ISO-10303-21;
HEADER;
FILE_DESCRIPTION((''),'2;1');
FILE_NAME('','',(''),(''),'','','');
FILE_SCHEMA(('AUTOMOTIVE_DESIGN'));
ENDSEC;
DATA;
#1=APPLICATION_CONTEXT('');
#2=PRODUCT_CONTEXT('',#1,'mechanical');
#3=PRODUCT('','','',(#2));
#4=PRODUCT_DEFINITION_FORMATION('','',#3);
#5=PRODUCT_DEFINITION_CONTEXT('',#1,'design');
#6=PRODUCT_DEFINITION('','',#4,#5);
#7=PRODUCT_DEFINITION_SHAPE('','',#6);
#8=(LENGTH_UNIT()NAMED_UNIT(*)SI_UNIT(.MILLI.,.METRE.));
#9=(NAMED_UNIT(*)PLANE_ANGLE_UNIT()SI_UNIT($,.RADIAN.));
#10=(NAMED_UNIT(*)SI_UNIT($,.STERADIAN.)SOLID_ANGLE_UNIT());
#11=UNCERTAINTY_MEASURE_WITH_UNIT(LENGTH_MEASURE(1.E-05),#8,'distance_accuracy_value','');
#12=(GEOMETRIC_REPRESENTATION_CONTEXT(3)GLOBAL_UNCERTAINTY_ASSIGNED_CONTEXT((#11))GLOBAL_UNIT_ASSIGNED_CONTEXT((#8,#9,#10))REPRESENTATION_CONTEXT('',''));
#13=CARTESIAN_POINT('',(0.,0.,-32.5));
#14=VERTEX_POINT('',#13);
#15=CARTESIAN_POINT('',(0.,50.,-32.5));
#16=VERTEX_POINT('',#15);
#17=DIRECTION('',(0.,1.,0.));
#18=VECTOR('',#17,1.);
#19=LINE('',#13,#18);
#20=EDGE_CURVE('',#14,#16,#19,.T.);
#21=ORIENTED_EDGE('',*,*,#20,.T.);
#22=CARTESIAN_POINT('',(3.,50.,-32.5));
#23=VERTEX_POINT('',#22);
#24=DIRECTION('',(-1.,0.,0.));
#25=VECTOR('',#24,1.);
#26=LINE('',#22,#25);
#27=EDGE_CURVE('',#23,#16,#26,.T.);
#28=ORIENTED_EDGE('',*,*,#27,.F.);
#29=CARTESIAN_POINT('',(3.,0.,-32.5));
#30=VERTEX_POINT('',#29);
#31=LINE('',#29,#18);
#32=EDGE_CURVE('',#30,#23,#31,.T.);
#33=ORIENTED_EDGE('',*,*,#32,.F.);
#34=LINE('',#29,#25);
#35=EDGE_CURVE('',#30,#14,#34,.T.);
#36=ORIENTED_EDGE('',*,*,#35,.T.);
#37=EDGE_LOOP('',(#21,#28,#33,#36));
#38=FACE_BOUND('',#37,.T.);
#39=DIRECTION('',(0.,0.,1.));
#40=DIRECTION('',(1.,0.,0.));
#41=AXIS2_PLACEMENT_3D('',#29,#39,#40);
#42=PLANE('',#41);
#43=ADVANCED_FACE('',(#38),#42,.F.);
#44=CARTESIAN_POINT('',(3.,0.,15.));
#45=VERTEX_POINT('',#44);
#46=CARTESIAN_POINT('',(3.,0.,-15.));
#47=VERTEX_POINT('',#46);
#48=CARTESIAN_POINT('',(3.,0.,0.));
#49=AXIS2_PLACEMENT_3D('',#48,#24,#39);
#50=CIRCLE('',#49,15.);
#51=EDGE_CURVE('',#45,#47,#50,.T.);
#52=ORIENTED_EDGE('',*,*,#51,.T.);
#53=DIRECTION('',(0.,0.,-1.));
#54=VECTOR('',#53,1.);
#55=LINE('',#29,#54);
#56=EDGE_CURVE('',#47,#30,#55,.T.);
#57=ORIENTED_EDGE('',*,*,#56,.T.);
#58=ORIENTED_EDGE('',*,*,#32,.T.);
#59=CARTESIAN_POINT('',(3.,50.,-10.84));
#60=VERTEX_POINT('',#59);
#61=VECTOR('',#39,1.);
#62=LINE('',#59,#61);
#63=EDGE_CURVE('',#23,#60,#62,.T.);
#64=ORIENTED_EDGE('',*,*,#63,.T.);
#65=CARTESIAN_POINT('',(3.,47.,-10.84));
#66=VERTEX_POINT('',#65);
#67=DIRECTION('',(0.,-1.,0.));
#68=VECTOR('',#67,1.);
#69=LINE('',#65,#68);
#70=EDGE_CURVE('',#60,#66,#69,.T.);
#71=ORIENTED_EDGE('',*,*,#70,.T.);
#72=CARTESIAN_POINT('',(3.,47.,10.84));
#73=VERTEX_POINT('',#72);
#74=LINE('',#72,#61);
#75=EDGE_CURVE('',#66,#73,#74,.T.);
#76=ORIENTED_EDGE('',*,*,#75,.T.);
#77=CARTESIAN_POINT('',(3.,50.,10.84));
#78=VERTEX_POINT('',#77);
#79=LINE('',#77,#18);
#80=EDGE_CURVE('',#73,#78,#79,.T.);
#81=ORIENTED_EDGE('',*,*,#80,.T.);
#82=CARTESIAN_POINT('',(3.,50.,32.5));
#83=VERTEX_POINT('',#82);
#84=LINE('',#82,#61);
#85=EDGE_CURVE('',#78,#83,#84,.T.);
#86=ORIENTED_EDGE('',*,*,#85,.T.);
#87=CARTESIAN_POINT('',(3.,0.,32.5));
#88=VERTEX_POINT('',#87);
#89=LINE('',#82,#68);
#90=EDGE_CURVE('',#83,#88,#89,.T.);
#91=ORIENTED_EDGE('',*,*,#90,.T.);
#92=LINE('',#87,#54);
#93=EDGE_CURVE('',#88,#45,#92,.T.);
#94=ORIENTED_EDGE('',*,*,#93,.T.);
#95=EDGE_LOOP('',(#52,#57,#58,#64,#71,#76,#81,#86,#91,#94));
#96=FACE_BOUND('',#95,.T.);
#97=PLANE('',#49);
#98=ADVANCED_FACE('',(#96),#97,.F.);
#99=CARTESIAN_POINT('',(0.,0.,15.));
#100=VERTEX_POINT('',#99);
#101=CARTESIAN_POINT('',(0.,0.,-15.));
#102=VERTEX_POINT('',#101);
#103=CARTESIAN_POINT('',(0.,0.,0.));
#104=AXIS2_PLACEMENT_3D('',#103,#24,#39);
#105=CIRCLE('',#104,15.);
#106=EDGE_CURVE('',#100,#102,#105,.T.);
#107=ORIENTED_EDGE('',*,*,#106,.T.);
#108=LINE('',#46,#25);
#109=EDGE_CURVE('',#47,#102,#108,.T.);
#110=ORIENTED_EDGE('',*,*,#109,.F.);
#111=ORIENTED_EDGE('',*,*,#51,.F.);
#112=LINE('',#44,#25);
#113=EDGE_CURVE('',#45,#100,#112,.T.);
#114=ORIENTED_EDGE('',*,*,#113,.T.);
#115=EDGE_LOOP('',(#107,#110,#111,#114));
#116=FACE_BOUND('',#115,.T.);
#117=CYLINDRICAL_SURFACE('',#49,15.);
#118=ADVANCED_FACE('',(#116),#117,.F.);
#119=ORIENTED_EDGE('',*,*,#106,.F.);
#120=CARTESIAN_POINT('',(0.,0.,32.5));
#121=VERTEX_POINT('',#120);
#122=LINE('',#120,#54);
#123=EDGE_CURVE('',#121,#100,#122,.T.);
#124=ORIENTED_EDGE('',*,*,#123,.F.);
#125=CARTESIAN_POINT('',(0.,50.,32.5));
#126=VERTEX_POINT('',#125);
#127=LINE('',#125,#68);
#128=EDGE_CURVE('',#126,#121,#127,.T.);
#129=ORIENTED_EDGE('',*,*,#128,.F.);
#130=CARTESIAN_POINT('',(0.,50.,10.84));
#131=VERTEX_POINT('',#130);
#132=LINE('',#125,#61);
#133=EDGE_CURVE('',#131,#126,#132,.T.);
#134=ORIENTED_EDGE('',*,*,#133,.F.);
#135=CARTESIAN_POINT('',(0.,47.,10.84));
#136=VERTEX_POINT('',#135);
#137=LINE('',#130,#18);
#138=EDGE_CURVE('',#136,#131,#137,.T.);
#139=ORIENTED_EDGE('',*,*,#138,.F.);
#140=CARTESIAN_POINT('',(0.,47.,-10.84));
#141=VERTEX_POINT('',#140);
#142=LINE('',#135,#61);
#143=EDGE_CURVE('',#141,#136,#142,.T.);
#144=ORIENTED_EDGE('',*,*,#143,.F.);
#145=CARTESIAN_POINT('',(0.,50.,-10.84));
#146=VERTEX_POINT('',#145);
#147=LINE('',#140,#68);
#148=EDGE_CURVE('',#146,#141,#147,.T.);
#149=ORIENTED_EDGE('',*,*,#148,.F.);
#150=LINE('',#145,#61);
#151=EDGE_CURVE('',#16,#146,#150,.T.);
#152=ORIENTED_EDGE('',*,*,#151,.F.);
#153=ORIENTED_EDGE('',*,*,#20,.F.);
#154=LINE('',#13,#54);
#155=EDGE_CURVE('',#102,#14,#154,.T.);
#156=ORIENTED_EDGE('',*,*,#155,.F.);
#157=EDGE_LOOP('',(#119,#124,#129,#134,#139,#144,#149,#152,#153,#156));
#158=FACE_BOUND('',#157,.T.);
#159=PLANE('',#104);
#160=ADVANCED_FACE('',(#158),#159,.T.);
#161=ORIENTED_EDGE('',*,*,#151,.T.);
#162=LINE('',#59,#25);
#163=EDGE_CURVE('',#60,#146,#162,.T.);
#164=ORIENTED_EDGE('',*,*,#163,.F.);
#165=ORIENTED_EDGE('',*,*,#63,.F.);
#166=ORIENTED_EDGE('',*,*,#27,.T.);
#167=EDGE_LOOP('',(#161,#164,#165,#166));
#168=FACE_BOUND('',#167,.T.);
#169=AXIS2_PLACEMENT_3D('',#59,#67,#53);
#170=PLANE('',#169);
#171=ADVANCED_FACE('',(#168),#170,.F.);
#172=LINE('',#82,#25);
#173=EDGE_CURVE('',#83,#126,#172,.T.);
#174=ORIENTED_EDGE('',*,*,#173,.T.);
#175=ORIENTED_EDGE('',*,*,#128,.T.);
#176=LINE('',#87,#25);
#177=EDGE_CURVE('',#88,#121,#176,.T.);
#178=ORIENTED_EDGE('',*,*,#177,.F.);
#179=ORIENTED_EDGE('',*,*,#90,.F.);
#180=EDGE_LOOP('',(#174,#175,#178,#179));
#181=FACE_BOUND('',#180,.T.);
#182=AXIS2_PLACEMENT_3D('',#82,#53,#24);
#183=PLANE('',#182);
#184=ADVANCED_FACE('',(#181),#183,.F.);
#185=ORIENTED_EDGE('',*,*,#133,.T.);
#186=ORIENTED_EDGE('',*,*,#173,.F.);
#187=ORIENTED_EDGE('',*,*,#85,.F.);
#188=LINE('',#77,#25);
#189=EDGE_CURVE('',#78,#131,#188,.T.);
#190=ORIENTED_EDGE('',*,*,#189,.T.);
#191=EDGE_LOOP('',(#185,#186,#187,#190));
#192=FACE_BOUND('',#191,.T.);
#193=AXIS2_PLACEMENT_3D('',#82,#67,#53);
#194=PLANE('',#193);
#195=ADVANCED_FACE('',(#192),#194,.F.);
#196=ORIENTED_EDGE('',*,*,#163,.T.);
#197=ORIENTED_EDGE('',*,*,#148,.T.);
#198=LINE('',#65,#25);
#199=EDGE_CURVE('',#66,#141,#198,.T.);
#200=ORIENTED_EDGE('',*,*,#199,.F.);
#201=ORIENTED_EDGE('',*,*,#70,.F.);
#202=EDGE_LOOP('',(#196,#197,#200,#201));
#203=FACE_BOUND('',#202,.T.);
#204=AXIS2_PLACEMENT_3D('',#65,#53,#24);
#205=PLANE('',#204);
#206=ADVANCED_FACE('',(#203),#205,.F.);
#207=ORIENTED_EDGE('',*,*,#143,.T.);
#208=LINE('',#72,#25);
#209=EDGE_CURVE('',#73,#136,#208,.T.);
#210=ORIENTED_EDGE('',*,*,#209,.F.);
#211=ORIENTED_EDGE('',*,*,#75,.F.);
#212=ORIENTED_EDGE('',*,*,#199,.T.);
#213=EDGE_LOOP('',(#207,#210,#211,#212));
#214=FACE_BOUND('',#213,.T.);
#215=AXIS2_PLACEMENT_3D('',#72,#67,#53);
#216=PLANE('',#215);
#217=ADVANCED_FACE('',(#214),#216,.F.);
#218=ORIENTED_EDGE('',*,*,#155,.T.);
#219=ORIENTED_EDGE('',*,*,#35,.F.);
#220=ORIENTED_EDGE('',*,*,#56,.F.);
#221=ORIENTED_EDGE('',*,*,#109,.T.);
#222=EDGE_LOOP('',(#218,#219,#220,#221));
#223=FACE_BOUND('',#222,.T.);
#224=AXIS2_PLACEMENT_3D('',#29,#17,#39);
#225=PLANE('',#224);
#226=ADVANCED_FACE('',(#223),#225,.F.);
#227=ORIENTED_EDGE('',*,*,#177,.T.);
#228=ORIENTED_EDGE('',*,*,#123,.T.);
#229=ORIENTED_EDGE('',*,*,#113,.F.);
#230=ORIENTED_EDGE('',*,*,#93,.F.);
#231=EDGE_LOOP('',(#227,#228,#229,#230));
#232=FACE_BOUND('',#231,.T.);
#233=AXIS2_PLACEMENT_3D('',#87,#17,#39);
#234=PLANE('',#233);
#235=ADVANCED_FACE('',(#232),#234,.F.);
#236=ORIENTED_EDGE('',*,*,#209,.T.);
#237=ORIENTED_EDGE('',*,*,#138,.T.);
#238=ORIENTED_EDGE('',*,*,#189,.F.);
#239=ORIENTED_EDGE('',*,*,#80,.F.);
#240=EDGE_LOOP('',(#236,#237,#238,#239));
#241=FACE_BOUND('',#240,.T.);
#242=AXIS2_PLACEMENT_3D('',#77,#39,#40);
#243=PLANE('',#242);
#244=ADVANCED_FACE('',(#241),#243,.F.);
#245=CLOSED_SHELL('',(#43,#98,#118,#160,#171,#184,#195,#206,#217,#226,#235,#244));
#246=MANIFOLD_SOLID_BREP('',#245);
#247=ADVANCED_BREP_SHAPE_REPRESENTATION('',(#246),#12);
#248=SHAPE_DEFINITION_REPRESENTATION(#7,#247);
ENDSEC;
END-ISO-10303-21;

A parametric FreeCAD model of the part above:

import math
import FreeCAD as App
import Part
import Sketcher

doc = App.newDocument("Part")
body = doc.addObject("PartDesign::Body", "Body")

sketch1 = body.newObject("Sketcher::SketchObject", "Sketch")
sketch1.AttachmentSupport = (doc.getObject("YZ_Plane"), [""])
sketch1.MapMode = "FlatFace"
sketch1.addGeometry([
    Part.LineSegment(App.Vector(50, 32.5, 0), App.Vector(0, 32.5, 0)),
    Part.LineSegment(App.Vector(0, 32.5, 0), App.Vector(0, 15, 0)),
    Part.ArcOfCircle(Part.Circle(App.Vector(0, 0, 0), App.Vector(0, 0, 1), 15), math.radians(-90), math.radians(90)),
    Part.LineSegment(App.Vector(0, -15, 0), App.Vector(0, -32.5, 0)),
    Part.LineSegment(App.Vector(0, -32.5, 0), App.Vector(50, -32.5, 0)),
    Part.LineSegment(App.Vector(50, -32.5, 0), App.Vector(50, -10.84, 0)),
    Part.LineSegment(App.Vector(50, -10.84, 0), App.Vector(47, -10.84, 0)),
    Part.LineSegment(App.Vector(47, -10.84, 0), App.Vector(47, 10.84, 0)),
    Part.LineSegment(App.Vector(47, 10.84, 0), App.Vector(50, 10.84, 0)),
    Part.LineSegment(App.Vector(50, 10.84, 0), App.Vector(50, 32.5, 0)),
], False)
sketch1.addConstraint([
    Sketcher.Constraint("Coincident", 0, 2, 1, 1),
    Sketcher.Constraint("Coincident", 1, 2, 2, 2),
    Sketcher.Constraint("Coincident", 2, 1, 3, 1),
    Sketcher.Constraint("Coincident", 3, 2, 4, 1),
    Sketcher.Constraint("Coincident", 4, 2, 5, 1),
    Sketcher.Constraint("Coincident", 5, 2, 6, 1),
    Sketcher.Constraint("Coincident", 6, 2, 7, 1),
    Sketcher.Constraint("Coincident", 7, 2, 8, 1),
    Sketcher.Constraint("Coincident", 8, 2, 9, 1),
    Sketcher.Constraint("Coincident", 9, 2, 0, 1),
    Sketcher.Constraint("Horizontal", 0),
    Sketcher.Constraint("Vertical", 1),
    Sketcher.Constraint("Vertical", 3),
    Sketcher.Constraint("Horizontal", 4),
    Sketcher.Constraint("Vertical", 5),
    Sketcher.Constraint("Horizontal", 6),
    Sketcher.Constraint("Vertical", 7),
    Sketcher.Constraint("Horizontal", 8),
    Sketcher.Constraint("Vertical", 9),
    Sketcher.Constraint("Coincident", 2, 3, -1, 1),
    Sketcher.Constraint("Symmetric", 0, 2, 3, 2, -1, 1),
    Sketcher.Constraint("Symmetric", 5, 2, 8, 2, -1),
    Sketcher.Constraint("PointOnObject", 0, 2, -2),
    Sketcher.Constraint("Radius", 2, 15.0),
    Sketcher.Constraint("DistanceX", 0, 2, 0, 1, 50.0),
    Sketcher.Constraint("DistanceX", 6, 2, 6, 1, 3.0),
    Sketcher.Constraint("DistanceY", 1, 2, 1, 1, 17.5),
    Sketcher.Constraint("DistanceY", 5, 1, 5, 2, 21.66),
])
pad1 = body.newObject("PartDesign::Pad", "Pad")
pad1.Profile = sketch1
pad1.Length = 3

doc.recompute()
